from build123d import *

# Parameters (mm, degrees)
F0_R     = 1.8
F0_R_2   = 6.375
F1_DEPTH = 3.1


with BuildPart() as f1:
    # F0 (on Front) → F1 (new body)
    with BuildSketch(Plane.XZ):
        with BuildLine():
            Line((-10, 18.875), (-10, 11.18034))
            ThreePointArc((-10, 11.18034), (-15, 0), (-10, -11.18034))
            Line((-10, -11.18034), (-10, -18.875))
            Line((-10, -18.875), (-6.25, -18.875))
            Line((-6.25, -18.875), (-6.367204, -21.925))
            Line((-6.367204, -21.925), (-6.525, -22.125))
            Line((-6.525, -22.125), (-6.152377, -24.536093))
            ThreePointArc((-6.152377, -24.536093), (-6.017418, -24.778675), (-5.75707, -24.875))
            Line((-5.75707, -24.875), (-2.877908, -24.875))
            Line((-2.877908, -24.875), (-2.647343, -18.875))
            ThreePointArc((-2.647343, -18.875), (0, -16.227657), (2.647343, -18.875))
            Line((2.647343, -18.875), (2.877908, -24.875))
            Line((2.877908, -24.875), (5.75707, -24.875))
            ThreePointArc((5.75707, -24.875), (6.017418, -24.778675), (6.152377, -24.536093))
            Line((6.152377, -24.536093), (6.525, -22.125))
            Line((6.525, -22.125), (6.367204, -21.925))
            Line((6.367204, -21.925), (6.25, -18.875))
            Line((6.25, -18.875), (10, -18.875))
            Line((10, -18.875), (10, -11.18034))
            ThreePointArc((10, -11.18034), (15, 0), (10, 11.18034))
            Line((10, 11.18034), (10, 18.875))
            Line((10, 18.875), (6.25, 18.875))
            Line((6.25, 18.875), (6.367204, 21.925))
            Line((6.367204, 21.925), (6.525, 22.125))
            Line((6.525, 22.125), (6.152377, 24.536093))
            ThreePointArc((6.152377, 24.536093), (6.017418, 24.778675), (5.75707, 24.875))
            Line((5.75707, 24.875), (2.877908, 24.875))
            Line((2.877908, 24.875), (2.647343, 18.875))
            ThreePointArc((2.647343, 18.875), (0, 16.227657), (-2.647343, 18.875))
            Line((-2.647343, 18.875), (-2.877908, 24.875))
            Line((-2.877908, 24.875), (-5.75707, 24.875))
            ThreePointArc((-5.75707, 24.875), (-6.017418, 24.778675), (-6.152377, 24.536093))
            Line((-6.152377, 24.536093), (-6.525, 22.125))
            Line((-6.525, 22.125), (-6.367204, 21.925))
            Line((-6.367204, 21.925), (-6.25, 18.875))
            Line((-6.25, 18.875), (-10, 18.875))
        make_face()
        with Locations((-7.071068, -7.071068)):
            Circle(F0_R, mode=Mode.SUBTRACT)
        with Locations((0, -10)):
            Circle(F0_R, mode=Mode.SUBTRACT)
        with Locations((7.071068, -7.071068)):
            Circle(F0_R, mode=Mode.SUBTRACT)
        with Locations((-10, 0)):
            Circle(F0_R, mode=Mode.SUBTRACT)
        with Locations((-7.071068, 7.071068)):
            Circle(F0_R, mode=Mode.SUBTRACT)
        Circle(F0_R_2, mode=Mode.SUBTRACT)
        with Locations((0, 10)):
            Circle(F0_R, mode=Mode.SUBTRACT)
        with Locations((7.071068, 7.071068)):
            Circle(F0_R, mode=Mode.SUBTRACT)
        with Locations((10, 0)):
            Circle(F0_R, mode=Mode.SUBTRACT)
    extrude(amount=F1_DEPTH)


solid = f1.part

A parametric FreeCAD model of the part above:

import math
import FreeCAD as App
import Part
import Sketcher
from FreeCAD import Vector

doc = App.newDocument("Part")
params = doc.addObject("Spreadsheet::Sheet", "Params")
for row, (alias, value) in enumerate([
    ("sketch1_radius", "15 mm"),
    ("sketch1_diameter", "3.6 mm"),
    ("sketch1_radius2", "0.400002 mm"),
    ("sketch1_diameter2", "12.75 mm"),
    ("sketch1_width", "3.75 mm"),
    ("pad1_length", "3.1 mm"),
], start=1):
    params.set(f"A{row}", alias)
    params.set(f"B{row}", "=" + value)
    params.setAlias(f"B{row}", alias)

body = doc.addObject("PartDesign::Body", "Body")

# Sketch on XZ plane
sketch1 = doc.addObject("Sketcher::SketchObject", "Sketch")
body.addObject(sketch1)
sketch1.AttachmentSupport = (doc.XZ_Plane, [""])
sketch1.MapMode = "FlatFace"
sketch1.addGeometry(Part.LineSegment(Vector(-10, 18.875, 0), Vector(-10, 11.18034, 0)), False)
sketch1.addGeometry(Part.ArcOfCircle(Part.Circle(Vector(0, 0, 0), Vector(0, 0, 1), 15), math.radians(131.810315), math.radians(228.189685)), False)
sketch1.addGeometry(Part.LineSegment(Vector(-10, -11.18034, 0), Vector(-10, -18.875, 0)), False)
sketch1.addGeometry(Part.LineSegment(Vector(-10, -18.875, 0), Vector(-6.25, -18.875, 0)), False)
sketch1.addGeometry(Part.LineSegment(Vector(-6.25, -18.875, 0), Vector(-6.367204, -21.925, 0)), False)
sketch1.addGeometry(Part.LineSegment(Vector(-6.367204, -21.925, 0), Vector(-6.525, -22.125, 0)), False)
sketch1.addGeometry(Part.LineSegment(Vector(-6.525, -22.125, 0), Vector(-6.152377, -24.536093, 0)), False)
sketch1.addGeometry(Part.ArcOfCircle(Part.Circle(Vector(-5.757069, -24.474998, 0), Vector(0, 0, 1), 0.400002), math.radians(-171.214494), math.radians(-90.000197)), False)
sketch1.addGeometry(Part.LineSegment(Vector(-5.75707, -24.875, 0), Vector(-2.877908, -24.875, 0)), False)
sketch1.addGeometry(Part.LineSegment(Vector(-2.877908, -24.875, 0), Vector(-2.647343, -18.875, 0)), False)
sketch1.addGeometry(Part.ArcOfCircle(Part.Circle(Vector(0, -18.875, 0), Vector(0, 0, 1), 2.647343), math.radians(0), math.radians(180)), False)
sketch1.addGeometry(Part.LineSegment(Vector(2.647343, -18.875, 0), Vector(2.877908, -24.875, 0)), False)
sketch1.addGeometry(Part.LineSegment(Vector(2.877908, -24.875, 0), Vector(5.75707, -24.875, 0)), False)
sketch1.addGeometry(Part.ArcOfCircle(Part.Circle(Vector(5.757069, -24.474998, 0), Vector(0, 0, 1), 0.400002), math.radians(-89.999803), math.radians(-8.785506)), False)
sketch1.addGeometry(Part.LineSegment(Vector(6.152377, -24.536093, 0), Vector(6.525, -22.125, 0)), False)
sketch1.addGeometry(Part.LineSegment(Vector(6.525, -22.125, 0), Vector(6.367204, -21.925, 0)), False)
sketch1.addGeometry(Part.LineSegment(Vector(6.367204, -21.925, 0), Vector(6.25, -18.875, 0)), False)
sketch1.addGeometry(Part.LineSegment(Vector(6.25, -18.875, 0), Vector(10, -18.875, 0)), False)
sketch1.addGeometry(Part.LineSegment(Vector(10, -18.875, 0), Vector(10, -11.18034, 0)), False)
sketch1.addGeometry(Part.ArcOfCircle(Part.Circle(Vector(0, 0, 0), Vector(0, 0, 1), 15), math.radians(-48.189685), math.radians(48.189685)), False)
sketch1.addGeometry(Part.LineSegment(Vector(10, 11.18034, 0), Vector(10, 18.875, 0)), False)
sketch1.addGeometry(Part.LineSegment(Vector(10, 18.875, 0), Vector(6.25, 18.875, 0)), False)
sketch1.addGeometry(Part.LineSegment(Vector(6.25, 18.875, 0), Vector(6.367204, 21.925, 0)), False)
sketch1.addGeometry(Part.LineSegment(Vector(6.367204, 21.925, 0), Vector(6.525, 22.125, 0)), False)
sketch1.addGeometry(Part.LineSegment(Vector(6.525, 22.125, 0), Vector(6.152377, 24.536093, 0)), False)
sketch1.addGeometry(Part.ArcOfCircle(Part.Circle(Vector(5.757069, 24.474998, 0), Vector(0, 0, 1), 0.400002), math.radians(8.785506), math.radians(89.999803)), False)
sketch1.addGeometry(Part.LineSegment(Vector(5.75707, 24.875, 0), Vector(2.877908, 24.875, 0)), False)
sketch1.addGeometry(Part.LineSegment(Vector(2.877908, 24.875, 0), Vector(2.647343, 18.875, 0)), False)
sketch1.addGeometry(Part.ArcOfCircle(Part.Circle(Vector(0, 18.875, 0), Vector(0, 0, 1), 2.647343), math.radians(180), math.radians(360)), False)
sketch1.addGeometry(Part.LineSegment(Vector(-2.647343, 18.875, 0), Vector(-2.877908, 24.875, 0)), False)
sketch1.addGeometry(Part.LineSegment(Vector(-2.877908, 24.875, 0), Vector(-5.75707, 24.875, 0)), False)
sketch1.addGeometry(Part.ArcOfCircle(Part.Circle(Vector(-5.757069, 24.474998, 0), Vector(0, 0, 1), 0.400002), math.radians(90.000197), math.radians(171.214494)), False)
sketch1.addGeometry(Part.LineSegment(Vector(-6.152377, 24.536093, 0), Vector(-6.525, 22.125, 0)), False)
sketch1.addGeometry(Part.LineSegment(Vector(-6.525, 22.125, 0), Vector(-6.367204, 21.925, 0)), False)
sketch1.addGeometry(Part.LineSegment(Vector(-6.367204, 21.925, 0), Vector(-6.25, 18.875, 0)), False)
sketch1.addGeometry(Part.LineSegment(Vector(-6.25, 18.875, 0), Vector(-10, 18.875, 0)), False)
sketch1.addGeometry(Part.Circle(Vector(-7.071068, -7.071068, 0), Vector(0, 0, 1), 1.8), False)
sketch1.addGeometry(Part.Circle(Vector(0, -10, 0), Vector(0, 0, 1), 1.8), False)
sketch1.addGeometry(Part.Circle(Vector(7.071068, -7.071068, 0), Vector(0, 0, 1), 1.8), False)
sketch1.addGeometry(Part.Circle(Vector(-10, 0, 0), Vector(0, 0, 1), 1.8), False)
sketch1.addGeometry(Part.Circle(Vector(-7.071068, 7.071068, 0), Vector(0, 0, 1), 1.8), False)
sketch1.addGeometry(Part.Circle(Vector(0, 0, 0), Vector(0, 0, 1), 6.375), False)
sketch1.addGeometry(Part.Circle(Vector(10, 0, 0), Vector(0, 0, 1), 1.8), False)
sketch1.addGeometry(Part.Circle(Vector(0, 10, 0), Vector(0, 0, 1), 1.8), False)
sketch1.addGeometry(Part.Circle(Vector(7.071068, 7.071068, 0), Vector(0, 0, 1), 1.8), False)
sketch1.addConstraint(Sketcher.Constraint("Coincident", 0, 2, 1, 1))
sketch1.addConstraint(Sketcher.Constraint("Coincident", 1, 2, 2, 1))
sketch1.addConstraint(Sketcher.Constraint("Coincident", 2, 2, 3, 1))
sketch1.addConstraint(Sketcher.Constraint("Coincident", 3, 2, 4, 1))
sketch1.addConstraint(Sketcher.Constraint("Coincident", 4, 2, 5, 1))
sketch1.addConstraint(Sketcher.Constraint("Coincident", 5, 2, 6, 1))
sketch1.addConstraint(Sketcher.Constraint("Coincident", 6, 2, 7, 1))
sketch1.addConstraint(Sketcher.Constraint("Coincident", 7, 2, 8, 1))
sketch1.addConstraint(Sketcher.Constraint("Coincident", 8, 2, 9, 1))
sketch1.addConstraint(Sketcher.Constraint("Coincident", 9, 2, 10, 2))
sketch1.addConstraint(Sketcher.Constraint("Coincident", 10, 1, 11, 1))
sketch1.addConstraint(Sketcher.Constraint("Coincident", 11, 2, 12, 1))
sketch1.addConstraint(Sketcher.Constraint("Coincident", 12, 2, 13, 1))
sketch1.addConstraint(Sketcher.Constraint("Coincident", 13, 2, 14, 1))
sketch1.addConstraint(Sketcher.Constraint("Coincident", 14, 2, 15, 1))
sketch1.addConstraint(Sketcher.Constraint("Coincident", 15, 2, 16, 1))
sketch1.addConstraint(Sketcher.Constraint("Coincident", 16, 2, 17, 1))
sketch1.addConstraint(Sketcher.Constraint("Coincident", 17, 2, 18, 1))
sketch1.addConstraint(Sketcher.Constraint("Coincident", 18, 2, 19, 1))
sketch1.addConstraint(Sketcher.Constraint("Coincident", 19, 2, 20, 1))
sketch1.addConstraint(Sketcher.Constraint("Coincident", 20, 2, 21, 1))
sketch1.addConstraint(Sketcher.Constraint("Coincident", 21, 2, 22, 1))
sketch1.addConstraint(Sketcher.Constraint("Coincident", 22, 2, 23, 1))
sketch1.addConstraint(Sketcher.Constraint("Coincident", 23, 2, 24, 1))
sketch1.addConstraint(Sketcher.Constraint("Coincident", 24, 2, 25, 1))
sketch1.addConstraint(Sketcher.Constraint("Coincident", 25, 2, 26, 1))
sketch1.addConstraint(Sketcher.Constraint("Coincident", 26, 2, 27, 1))
sketch1.addConstraint(Sketcher.Constraint("Coincident", 27, 2, 28, 2))
sketch1.addConstraint(Sketcher.Constraint("Coincident", 28, 1, 29, 1))
sketch1.addConstraint(Sketcher.Constraint("Coincident", 29, 2, 30, 1))
sketch1.addConstraint(Sketcher.Constraint("Coincident", 30, 2, 31, 1))
sketch1.addConstraint(Sketcher.Constraint("Coincident", 31, 2, 32, 1))
sketch1.addConstraint(Sketcher.Constraint("Coincident", 32, 2, 33, 1))
sketch1.addConstraint(Sketcher.Constraint("Coincident", 33, 2, 34, 1))
sketch1.addConstraint(Sketcher.Constraint("Coincident", 34, 2, 35, 1))
sketch1.addConstraint(Sketcher.Constraint("Coincident", 35, 2, 0, 1))
sketch1.addConstraint(Sketcher.Constraint("Vertical", 0))
sketch1.addConstraint(Sketcher.Constraint("Vertical", 2))
sketch1.addConstraint(Sketcher.Constraint("Horizontal", 3))
sketch1.addConstraint(Sketcher.Constraint("Horizontal", 8))
sketch1.addConstraint(Sketcher.Constraint("Horizontal", 12))
sketch1.addConstraint(Sketcher.Constraint("Horizontal", 17))
sketch1.addConstraint(Sketcher.Constraint("Vertical", 18))
sketch1.addConstraint(Sketcher.Constraint("Vertical", 20))
sketch1.addConstraint(Sketcher.Constraint("Horizontal", 21))
sketch1.addConstraint(Sketcher.Constraint("Horizontal", 26))
sketch1.addConstraint(Sketcher.Constraint("Horizontal", 30))
sketch1.addConstraint(Sketcher.Constraint("Horizontal", 35))
sketch1.addConstraint(Sketcher.Constraint("Coincident", 1, 3, -1, 1))
sketch1.addConstraint(Sketcher.Constraint("Coincident", 19, 3, -1, 1))
sketch1.addConstraint(Sketcher.Constraint("Coincident", 41, 3, -1, 1))
sketch1.addConstraint(Sketcher.Constraint("Equal", 7, 13))
sketch1.addConstraint(Sketcher.Constraint("Equal", 1, 19))
sketch1.addConstraint(Sketcher.Constraint("Equal", 13, 25))
sketch1.addConstraint(Sketcher.Constraint("Equal", 10, 28))
sketch1.addConstraint(Sketcher.Constraint("Equal", 25, 31))
sketch1.addConstraint(Sketcher.Constraint("Equal", 36, 37))
sketch1.addConstraint(Sketcher.Constraint("Equal", 37, 38))
sketch1.addConstraint(Sketcher.Constraint("Equal", 38, 39))
sketch1.addConstraint(Sketcher.Constraint("Equal", 39, 40))
sketch1.addConstraint(Sketcher.Constraint("Equal", 40, 42))
sketch1.addConstraint(Sketcher.Constraint("Equal", 42, 43))
sketch1.addConstraint(Sketcher.Constraint("Equal", 43, 44))
sketch1.addConstraint(Sketcher.Constraint("Symmetric", 7, 3, 25, 3, -1, 1))
sketch1.addConstraint(Sketcher.Constraint("Symmetric", 10, 3, 28, 3, -1, 1))
sketch1.addConstraint(Sketcher.Constraint("Symmetric", 13, 3, 31, 3, -1, 1))
sketch1.addConstraint(Sketcher.Constraint("Symmetric", 38, 3, 40, 3, -1, 1))
sketch1.addConstraint(Sketcher.Constraint("Symmetric", 39, 3, 42, 3, -1, 1))
sketch1.addConstraint(Sketcher.Constraint("Symmetric", 37, 3, 43, 3, -1, 1))
sketch1.addConstraint(Sketcher.Constraint("Symmetric", 36, 3, 44, 3, -1, 1))
sketch1.addConstraint(Sketcher.Constraint("Symmetric", 2, 2, 20, 2, -1, 1))
sketch1.addConstraint(Sketcher.Constraint("Symmetric", 4, 2, 22, 2, -1, 1))
sketch1.addConstraint(Sketcher.Constraint("Symmetric", 5, 2, 23, 2, -1, 1))
sketch1.addConstraint(Sketcher.Constraint("Symmetric", 14, 2, 32, 2, -1, 1))
sketch1.addConstraint(Sketcher.Constraint("Symmetric", 15, 2, 33, 2, -1, 1))
sketch1.addConstraint(Sketcher.Constraint("Symmetric", 16, 2, 34, 2, -1, 1))
sketch1.addConstraint(Sketcher.Constraint("Symmetric", 7, 3, 13, 3, -2))
sketch1.addConstraint(Sketcher.Constraint("Symmetric", 36, 3, 38, 3, -2))
sketch1.addConstraint(Sketcher.Constraint("Symmetric", 9, 2, 10, 1, -2))
sketch1.addConstraint(Sketcher.Constraint("Symmetric", 5, 2, 14, 2, -2))
sketch1.addConstraint(Sketcher.Constraint("Symmetric", 4, 2, 15, 2, -2))
sketch1.addConstraint(Sketcher.Constraint("Symmetric", 3, 2, 16, 2, -2))
sketch1.addConstraint(Sketcher.Constraint("PointOnObject", 37, 3, -2))
sketch1.addConstraint(Sketcher.Constraint("PointOnObject", 39, 3, -1))
sketch1.addConstraint(Sketcher.Constraint("Parallel", 4, 9))
sketch1.addConstraint(Sketcher.Constraint("Parallel", 11, 16))
sketch1.addConstraint(Sketcher.Constraint("Parallel", 9, 22))
sketch1.addConstraint(Sketcher.Constraint("Parallel", 22, 27))
sketch1.addConstraint(Sketcher.Constraint("Parallel", 16, 29))
sketch1.addConstraint(Sketcher.Constraint("Horizontal", 10, 3, 2, 2))
sketch1.addConstraint(Sketcher.Constraint("Horizontal", 3, 2, 9, 2))
sketch1.addConstraint(Sketcher.Constraint("Horizontal", 6, 2, 13, 2))
sketch1.addConstraint(Sketcher.Constraint("Horizontal", 1, 2, 18, 2))
sketch1.addConstraint(Sketcher.Constraint("Horizontal", 0, 2, 19, 2))
sketch1.addConstraint(Sketcher.Constraint("Horizontal", 21, 2, 27, 2))
sketch1.addConstraint(Sketcher.Constraint("Horizontal", 27, 2, 28, 1))
sketch1.addConstraint(Sketcher.Constraint("Horizontal", 24, 2, 31, 2))
sketch1.addConstraint(Sketcher.Constraint("Vertical", 39, 3, 0, 2))
sketch1.addConstraint(Sketcher.Constraint("Vertical", 31, 3, 7, 2))
sketch1.addConstraint(Sketcher.Constraint("Vertical", 25, 3, 12, 2))
sketch1.addConstraint(Sketcher.Constraint("Vertical", 13, 2, 24, 2))
sketch1.addConstraint(Sketcher.Constraint("Vertical", 12, 2, 25, 2))
sketch1.addConstraint(Sketcher.Constraint("Vertical", 7, 2, 30, 2))
sketch1.addConstraint(Sketcher.Constraint("Radius", 1, 15.0))
sketch1.addConstraint(Sketcher.Constraint("Diameter", 36, 3.6))
sketch1.addConstraint(Sketcher.Constraint("Radius", 7, 0.400002))
sketch1.addConstraint(Sketcher.Constraint("Diameter", 41, 12.75))
sketch1.addConstraint(Sketcher.Constraint("DistanceY", 37, 3, -1, 1, 10.0))
sketch1.addConstraint(Sketcher.Constraint("DistanceX", 39, 3, -1, 1, 10.0))
sketch1.addConstraint(Sketcher.Constraint("DistanceY", 7, 2, 3, 2, 6.0))
sketch1.addConstraint(Sketcher.Constraint("DistanceX", 3, 1, 3, 2, 3.75))
sketch1.addConstraint(Sketcher.Constraint("DistanceY", 5, 2, 4, 2, 0.2))
sketch1.addConstraint(Sketcher.Constraint("DistanceY", 10, 3, 25, 3, 43.349998))
sketch1.addConstraint(Sketcher.Constraint("DistanceY", 7, 3, 4, 2, 2.549998))
sketch1.addConstraint(Sketcher.Constraint("DistanceX", 5, 2, -1, 1, 6.525))
sketch1.addConstraint(Sketcher.Constraint("Radius", 10, 2.647343))
sketch1.addConstraint(Sketcher.Constraint("DistanceX", 36, 3, 7, 3, 1.313999))
sketch1.addConstraint(Sketcher.Constraint("DistanceX", 8, 1, 8, 2, 2.879162))
sketch1.addConstraint(Sketcher.Constraint("Distance", 4, 3.052251))
sketch1.addConstraint(Sketcher.Constraint("DistanceY", 36, 3, -1, 1, 7.071068))
sketch1.addConstraint(Sketcher.Constraint("DistanceX", 6, 2, 7, 3, 0.395308))
sketch1.setExpression("Constraints[103]", "Params.sketch1_radius")
sketch1.setExpression("Constraints[104]", "Params.sketch1_diameter")
sketch1.setExpression("Constraints[105]", "Params.sketch1_radius2")
sketch1.setExpression("Constraints[106]", "Params.sketch1_diameter2")
sketch1.setExpression("Constraints[110]", "Params.sketch1_width")
pad1 = doc.addObject("PartDesign::Pad", "Pad")
body.addObject(pad1)
pad1.Profile = sketch1
pad1.setExpression("Length", "Params.pad1_length")

doc.recompute()
